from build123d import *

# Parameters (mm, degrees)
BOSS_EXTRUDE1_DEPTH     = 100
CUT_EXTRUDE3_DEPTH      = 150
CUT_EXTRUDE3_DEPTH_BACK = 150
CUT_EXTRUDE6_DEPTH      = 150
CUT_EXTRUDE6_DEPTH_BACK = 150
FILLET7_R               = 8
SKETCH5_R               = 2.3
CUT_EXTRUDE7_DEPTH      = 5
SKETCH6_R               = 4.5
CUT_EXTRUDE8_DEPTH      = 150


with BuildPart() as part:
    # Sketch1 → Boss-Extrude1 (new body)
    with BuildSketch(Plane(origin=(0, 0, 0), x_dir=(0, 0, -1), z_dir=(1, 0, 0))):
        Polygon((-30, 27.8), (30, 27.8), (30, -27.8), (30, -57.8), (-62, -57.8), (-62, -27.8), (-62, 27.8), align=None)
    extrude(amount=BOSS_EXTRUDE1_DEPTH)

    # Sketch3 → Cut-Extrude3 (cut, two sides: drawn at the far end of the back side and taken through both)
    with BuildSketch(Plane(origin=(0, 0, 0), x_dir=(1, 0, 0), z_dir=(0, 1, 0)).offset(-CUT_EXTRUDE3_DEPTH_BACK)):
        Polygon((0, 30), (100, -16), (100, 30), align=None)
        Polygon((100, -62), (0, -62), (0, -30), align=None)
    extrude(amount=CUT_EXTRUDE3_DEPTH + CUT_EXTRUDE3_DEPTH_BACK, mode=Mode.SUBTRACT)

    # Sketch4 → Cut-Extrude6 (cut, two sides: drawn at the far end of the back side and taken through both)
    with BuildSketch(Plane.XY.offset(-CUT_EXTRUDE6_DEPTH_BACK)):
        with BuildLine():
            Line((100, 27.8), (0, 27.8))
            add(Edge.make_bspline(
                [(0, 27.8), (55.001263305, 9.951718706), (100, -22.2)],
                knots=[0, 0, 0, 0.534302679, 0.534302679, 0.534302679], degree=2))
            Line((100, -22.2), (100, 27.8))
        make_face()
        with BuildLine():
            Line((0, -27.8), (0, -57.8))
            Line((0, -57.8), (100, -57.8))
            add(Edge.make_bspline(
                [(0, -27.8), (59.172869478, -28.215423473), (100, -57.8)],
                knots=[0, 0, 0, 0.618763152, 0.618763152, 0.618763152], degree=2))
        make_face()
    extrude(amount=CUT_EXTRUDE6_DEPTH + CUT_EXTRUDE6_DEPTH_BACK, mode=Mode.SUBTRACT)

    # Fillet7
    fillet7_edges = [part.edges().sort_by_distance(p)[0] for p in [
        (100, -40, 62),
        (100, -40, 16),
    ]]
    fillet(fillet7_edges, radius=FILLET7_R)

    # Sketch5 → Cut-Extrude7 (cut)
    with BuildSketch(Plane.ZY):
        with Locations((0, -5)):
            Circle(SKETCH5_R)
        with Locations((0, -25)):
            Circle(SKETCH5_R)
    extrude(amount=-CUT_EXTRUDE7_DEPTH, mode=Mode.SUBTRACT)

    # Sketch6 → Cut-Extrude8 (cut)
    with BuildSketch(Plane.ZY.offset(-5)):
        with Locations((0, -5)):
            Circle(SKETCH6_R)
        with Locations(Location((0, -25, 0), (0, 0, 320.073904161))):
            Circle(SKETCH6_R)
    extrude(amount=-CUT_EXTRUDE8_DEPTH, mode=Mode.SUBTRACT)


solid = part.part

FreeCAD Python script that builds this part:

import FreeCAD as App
import Part
import Sketcher
from FreeCAD import Vector


def edges_at(feature, points):
    """Names of the edges that pass closest to the given points."""
    edges = feature.Shape.Edges
    near = lambda p: min(range(len(edges)), key=lambda i: edges[i].distToShape(Part.Vertex(*p))[0])
    return sorted({f"Edge{near(p) + 1}" for p in points})


def add_polygon(sketch, points):
    """Adds a closed chain of lines whose ends are joined by coincident constraints."""
    first, n = sketch.GeometryCount, len(points)
    for a, b in zip(points, points[1:] + points[:1]):
        sketch.addGeometry(Part.LineSegment(App.Vector(*a, 0), App.Vector(*b, 0)), False)
    for i in range(n):
        sketch.addConstraint(Sketcher.Constraint("Coincident", first + i, 2, first + (i + 1) % n, 1))

doc = App.newDocument("Part")
params = doc.addObject("Spreadsheet::Sheet", "Params")
for row, (alias, value) in enumerate([
    ("sketch1_height", "92 mm"),
    ("sketch1_width", "85.6 mm"),
    ("pad1_length", "100 mm"),
    ("sketch2_width", "100 mm"),
    ("sketch2_height", "46 mm"),
    ("sketch2_height2", "32 mm"),
    ("fillet_radius", "8 mm"),
    ("sketch4_diameter", "4.6 mm"),
    ("pocket3_length", "5 mm"),
    ("sketch5_diameter", "9 mm"),
    ("pocket4_length", "150 mm"),
], start=1):
    params.set(f"A{row}", alias)
    params.set(f"B{row}", "=" + value)
    params.setAlias(f"B{row}", alias)

body = doc.addObject("PartDesign::Body", "Body")

# Sketch on YZ plane
sketch1 = body.newObject("Sketcher::SketchObject", "Sketch")
sketch1.AttachmentSupport = (doc.getObject("YZ_Plane"), [""])
sketch1.MapMode = "FlatFace"
add_polygon(sketch1, [(27.8, -30), (27.8, 62), (-57.8, 62), (-57.8, -30)])  # lines 0-3
sketch1.addConstraint([
    Sketcher.Constraint("Vertical", 0),
    Sketcher.Constraint("Horizontal", 1),
    Sketcher.Constraint("Vertical", 2),
    Sketcher.Constraint("Horizontal", 3),
    Sketcher.Constraint("DistanceY", 0, 1, 0, 2, 92.0),
    Sketcher.Constraint("DistanceX", 1, 2, 1, 1, 85.6),
    Sketcher.Constraint("DistanceY", -1, 1, 0, 2, 62.0),
    Sketcher.Constraint("DistanceX", -1, 1, 0, 2, 27.8),
])
sketch1.setExpression("Constraints[8]", "Params.sketch1_height")
sketch1.setExpression("Constraints[9]", "Params.sketch1_width")
pad1 = body.newObject("PartDesign::Pad", "Pad")
pad1.Profile = sketch1
pad1.setExpression("Length", "Params.pad1_length")

# Sketch on XZ plane
sketch2 = body.newObject("Sketcher::SketchObject", "Sketch001")
sketch2.AttachmentSupport = (doc.getObject("XZ_Plane"), [""])
sketch2.MapMode = "FlatFace"
add_polygon(sketch2, [(0, -30), (100, 16), (100, -30)])  # lines 0-2
add_polygon(sketch2, [(0, 62), (100, 62), (0, 30)])  # lines 3-5
sketch2.addConstraint([
    Sketcher.Constraint("Vertical", 1),
    Sketcher.Constraint("Horizontal", 2),
    Sketcher.Constraint("Horizontal", 3),
    Sketcher.Constraint("Vertical", 5),
    Sketcher.Constraint("Symmetric", 2, 2, 4, 2, -1, 1),
    Sketcher.Constraint("PointOnObject", 2, 2, -2),
    Sketcher.Constraint("Vertical", 1, 2, 3, 2),
    Sketcher.Constraint("DistanceX", 2, 2, 2, 1, 100.0),
    Sketcher.Constraint("DistanceY", 1, 2, 1, 1, 46.0),
    Sketcher.Constraint("DistanceY", 5, 1, 5, 2, 32.0),
    Sketcher.Constraint("DistanceY", -1, 1, 0, 2, 16.0),
])
sketch2.setExpression("Constraints[13]", "Params.sketch2_width")
sketch2.setExpression("Constraints[14]", "Params.sketch2_height")
sketch2.setExpression("Constraints[15]", "Params.sketch2_height2")
pocket1 = body.newObject("PartDesign::Pocket", "Pocket")
pocket1.Profile = sketch2
pocket1.Type = "ThroughAll"
pocket1.Midplane = True

# Sketch on XY plane
sketch3 = body.newObject("Sketcher::SketchObject", "Sketch002")
sketch3.AttachmentSupport = (doc.getObject("XY_Plane"), [""])
sketch3.MapMode = "FlatFace"
sketch3.addGeometry([
    Part.LineSegment(Vector(100, 27.8, 0), Vector(0, 27.8, 0)),  # 0
    Part.BSplineCurve([Vector(0, 27.8, 0), Vector(55.001263, 9.951719, 0), Vector(100, -22.2, 0)], [3, 3], [0, 0.534302679], False, 2, [1, 1, 1], False),  # 1
    Part.LineSegment(Vector(100, -22.2, 0), Vector(100, 27.8, 0)),  # 2
    Part.LineSegment(Vector(0, -27.8, 0), Vector(0, -57.8, 0)),  # 3
    Part.LineSegment(Vector(0, -57.8, 0), Vector(100, -57.8, 0)),  # 4
    Part.BSplineCurve([Vector(0, -27.8, 0), Vector(59.172869, -28.215423, 0), Vector(100, -57.8, 0)], [3, 3], [0, 0.618763152], False, 2, [1, 1, 1], False),  # 5
], False)
sketch3.addConstraint([
    Sketcher.Constraint("Block", 1),
    Sketcher.Constraint("Block", 5),
    Sketcher.Constraint("Coincident", 0, 2, 1, 1),
    Sketcher.Constraint("Coincident", 1, 2, 2, 1),
    Sketcher.Constraint("Coincident", 2, 2, 0, 1),
    Sketcher.Constraint("Coincident", 3, 2, 4, 1),
    Sketcher.Constraint("Coincident", 4, 2, 5, 2),
    Sketcher.Constraint("Coincident", 5, 1, 3, 1),
    Sketcher.Constraint("Horizontal", 0),
    Sketcher.Constraint("Vertical", 2),
    Sketcher.Constraint("Vertical", 3),
    Sketcher.Constraint("Horizontal", 4),
])
pocket2 = body.newObject("PartDesign::Pocket", "Pocket001")
pocket2.Profile = sketch3
pocket2.Type = "ThroughAll"
pocket2.Midplane = True
doc.recompute()

fillet = body.newObject("PartDesign::Fillet", "Fillet")
fillet.Base = (pocket2, edges_at(pocket2, [(100, -40, 62), (100, -40, 16)]))
fillet.setExpression("Radius", "Params.fillet_radius")

# Sketch on YZ plane
sketch4 = body.newObject("Sketcher::SketchObject", "Sketch003")
sketch4.AttachmentSupport = (doc.getObject("YZ_Plane"), [""])
sketch4.MapMode = "FlatFace"
sketch4.addGeometry([
    Part.Circle(Vector(-5, 0, 0), Vector(0, 0, 1), 2.3),
    Part.Circle(Vector(-25, 0, 0), Vector(0, 0, 1), 2.3),
], False)
sketch4.addConstraint([
    Sketcher.Constraint("Equal", 0, 1),
    Sketcher.Constraint("PointOnObject", 0, 3, -1),
    Sketcher.Constraint("PointOnObject", 1, 3, -1),
    Sketcher.Constraint("Diameter", 0, 4.6),
    Sketcher.Constraint("DistanceX", 0, 3, -1, 1, 5.0),
    Sketcher.Constraint("DistanceX", 1, 3, -1, 1, 25.0),
])
sketch4.setExpression("Constraints[3]", "Params.sketch4_diameter")
pocket3 = body.newObject("PartDesign::Pocket", "Pocket002")
pocket3.Profile = sketch4
pocket3.setExpression("Length", "Params.pocket3_length")
pocket3.Reversed = True

# Sketch on YZ plane
sketch5 = body.newObject("Sketcher::SketchObject", "Sketch004")
sketch5.AttachmentSupport = (doc.getObject("YZ_Plane"), [""])
sketch5.MapMode = "FlatFace"
sketch5.AttachmentOffset = App.Placement(Vector(0, 0, 5), App.Rotation())
sketch5.addGeometry([
    Part.Circle(Vector(-5, 0, 0), Vector(0, 0, 1), 4.5),
    Part.Circle(Vector(-25, 0, 0), Vector(0, 0, 1), 4.5),
], False)
sketch5.addConstraint([
    Sketcher.Constraint("Equal", 0, 1),
    Sketcher.Constraint("PointOnObject", 0, 3, -1),
    Sketcher.Constraint("PointOnObject", 1, 3, -1),
    Sketcher.Constraint("Diameter", 0, 9.0),
    Sketcher.Constraint("DistanceX", 0, 3, -1, 1, 5.0),
    Sketcher.Constraint("DistanceX", 1, 3, -1, 1, 25.0),
])
sketch5.setExpression("Constraints[3]", "Params.sketch5_diameter")
pocket4 = body.newObject("PartDesign::Pocket", "Pocket003")
pocket4.Profile = sketch5
pocket4.setExpression("Length", "Params.pocket4_length")
pocket4.Reversed = True

doc.recompute()
